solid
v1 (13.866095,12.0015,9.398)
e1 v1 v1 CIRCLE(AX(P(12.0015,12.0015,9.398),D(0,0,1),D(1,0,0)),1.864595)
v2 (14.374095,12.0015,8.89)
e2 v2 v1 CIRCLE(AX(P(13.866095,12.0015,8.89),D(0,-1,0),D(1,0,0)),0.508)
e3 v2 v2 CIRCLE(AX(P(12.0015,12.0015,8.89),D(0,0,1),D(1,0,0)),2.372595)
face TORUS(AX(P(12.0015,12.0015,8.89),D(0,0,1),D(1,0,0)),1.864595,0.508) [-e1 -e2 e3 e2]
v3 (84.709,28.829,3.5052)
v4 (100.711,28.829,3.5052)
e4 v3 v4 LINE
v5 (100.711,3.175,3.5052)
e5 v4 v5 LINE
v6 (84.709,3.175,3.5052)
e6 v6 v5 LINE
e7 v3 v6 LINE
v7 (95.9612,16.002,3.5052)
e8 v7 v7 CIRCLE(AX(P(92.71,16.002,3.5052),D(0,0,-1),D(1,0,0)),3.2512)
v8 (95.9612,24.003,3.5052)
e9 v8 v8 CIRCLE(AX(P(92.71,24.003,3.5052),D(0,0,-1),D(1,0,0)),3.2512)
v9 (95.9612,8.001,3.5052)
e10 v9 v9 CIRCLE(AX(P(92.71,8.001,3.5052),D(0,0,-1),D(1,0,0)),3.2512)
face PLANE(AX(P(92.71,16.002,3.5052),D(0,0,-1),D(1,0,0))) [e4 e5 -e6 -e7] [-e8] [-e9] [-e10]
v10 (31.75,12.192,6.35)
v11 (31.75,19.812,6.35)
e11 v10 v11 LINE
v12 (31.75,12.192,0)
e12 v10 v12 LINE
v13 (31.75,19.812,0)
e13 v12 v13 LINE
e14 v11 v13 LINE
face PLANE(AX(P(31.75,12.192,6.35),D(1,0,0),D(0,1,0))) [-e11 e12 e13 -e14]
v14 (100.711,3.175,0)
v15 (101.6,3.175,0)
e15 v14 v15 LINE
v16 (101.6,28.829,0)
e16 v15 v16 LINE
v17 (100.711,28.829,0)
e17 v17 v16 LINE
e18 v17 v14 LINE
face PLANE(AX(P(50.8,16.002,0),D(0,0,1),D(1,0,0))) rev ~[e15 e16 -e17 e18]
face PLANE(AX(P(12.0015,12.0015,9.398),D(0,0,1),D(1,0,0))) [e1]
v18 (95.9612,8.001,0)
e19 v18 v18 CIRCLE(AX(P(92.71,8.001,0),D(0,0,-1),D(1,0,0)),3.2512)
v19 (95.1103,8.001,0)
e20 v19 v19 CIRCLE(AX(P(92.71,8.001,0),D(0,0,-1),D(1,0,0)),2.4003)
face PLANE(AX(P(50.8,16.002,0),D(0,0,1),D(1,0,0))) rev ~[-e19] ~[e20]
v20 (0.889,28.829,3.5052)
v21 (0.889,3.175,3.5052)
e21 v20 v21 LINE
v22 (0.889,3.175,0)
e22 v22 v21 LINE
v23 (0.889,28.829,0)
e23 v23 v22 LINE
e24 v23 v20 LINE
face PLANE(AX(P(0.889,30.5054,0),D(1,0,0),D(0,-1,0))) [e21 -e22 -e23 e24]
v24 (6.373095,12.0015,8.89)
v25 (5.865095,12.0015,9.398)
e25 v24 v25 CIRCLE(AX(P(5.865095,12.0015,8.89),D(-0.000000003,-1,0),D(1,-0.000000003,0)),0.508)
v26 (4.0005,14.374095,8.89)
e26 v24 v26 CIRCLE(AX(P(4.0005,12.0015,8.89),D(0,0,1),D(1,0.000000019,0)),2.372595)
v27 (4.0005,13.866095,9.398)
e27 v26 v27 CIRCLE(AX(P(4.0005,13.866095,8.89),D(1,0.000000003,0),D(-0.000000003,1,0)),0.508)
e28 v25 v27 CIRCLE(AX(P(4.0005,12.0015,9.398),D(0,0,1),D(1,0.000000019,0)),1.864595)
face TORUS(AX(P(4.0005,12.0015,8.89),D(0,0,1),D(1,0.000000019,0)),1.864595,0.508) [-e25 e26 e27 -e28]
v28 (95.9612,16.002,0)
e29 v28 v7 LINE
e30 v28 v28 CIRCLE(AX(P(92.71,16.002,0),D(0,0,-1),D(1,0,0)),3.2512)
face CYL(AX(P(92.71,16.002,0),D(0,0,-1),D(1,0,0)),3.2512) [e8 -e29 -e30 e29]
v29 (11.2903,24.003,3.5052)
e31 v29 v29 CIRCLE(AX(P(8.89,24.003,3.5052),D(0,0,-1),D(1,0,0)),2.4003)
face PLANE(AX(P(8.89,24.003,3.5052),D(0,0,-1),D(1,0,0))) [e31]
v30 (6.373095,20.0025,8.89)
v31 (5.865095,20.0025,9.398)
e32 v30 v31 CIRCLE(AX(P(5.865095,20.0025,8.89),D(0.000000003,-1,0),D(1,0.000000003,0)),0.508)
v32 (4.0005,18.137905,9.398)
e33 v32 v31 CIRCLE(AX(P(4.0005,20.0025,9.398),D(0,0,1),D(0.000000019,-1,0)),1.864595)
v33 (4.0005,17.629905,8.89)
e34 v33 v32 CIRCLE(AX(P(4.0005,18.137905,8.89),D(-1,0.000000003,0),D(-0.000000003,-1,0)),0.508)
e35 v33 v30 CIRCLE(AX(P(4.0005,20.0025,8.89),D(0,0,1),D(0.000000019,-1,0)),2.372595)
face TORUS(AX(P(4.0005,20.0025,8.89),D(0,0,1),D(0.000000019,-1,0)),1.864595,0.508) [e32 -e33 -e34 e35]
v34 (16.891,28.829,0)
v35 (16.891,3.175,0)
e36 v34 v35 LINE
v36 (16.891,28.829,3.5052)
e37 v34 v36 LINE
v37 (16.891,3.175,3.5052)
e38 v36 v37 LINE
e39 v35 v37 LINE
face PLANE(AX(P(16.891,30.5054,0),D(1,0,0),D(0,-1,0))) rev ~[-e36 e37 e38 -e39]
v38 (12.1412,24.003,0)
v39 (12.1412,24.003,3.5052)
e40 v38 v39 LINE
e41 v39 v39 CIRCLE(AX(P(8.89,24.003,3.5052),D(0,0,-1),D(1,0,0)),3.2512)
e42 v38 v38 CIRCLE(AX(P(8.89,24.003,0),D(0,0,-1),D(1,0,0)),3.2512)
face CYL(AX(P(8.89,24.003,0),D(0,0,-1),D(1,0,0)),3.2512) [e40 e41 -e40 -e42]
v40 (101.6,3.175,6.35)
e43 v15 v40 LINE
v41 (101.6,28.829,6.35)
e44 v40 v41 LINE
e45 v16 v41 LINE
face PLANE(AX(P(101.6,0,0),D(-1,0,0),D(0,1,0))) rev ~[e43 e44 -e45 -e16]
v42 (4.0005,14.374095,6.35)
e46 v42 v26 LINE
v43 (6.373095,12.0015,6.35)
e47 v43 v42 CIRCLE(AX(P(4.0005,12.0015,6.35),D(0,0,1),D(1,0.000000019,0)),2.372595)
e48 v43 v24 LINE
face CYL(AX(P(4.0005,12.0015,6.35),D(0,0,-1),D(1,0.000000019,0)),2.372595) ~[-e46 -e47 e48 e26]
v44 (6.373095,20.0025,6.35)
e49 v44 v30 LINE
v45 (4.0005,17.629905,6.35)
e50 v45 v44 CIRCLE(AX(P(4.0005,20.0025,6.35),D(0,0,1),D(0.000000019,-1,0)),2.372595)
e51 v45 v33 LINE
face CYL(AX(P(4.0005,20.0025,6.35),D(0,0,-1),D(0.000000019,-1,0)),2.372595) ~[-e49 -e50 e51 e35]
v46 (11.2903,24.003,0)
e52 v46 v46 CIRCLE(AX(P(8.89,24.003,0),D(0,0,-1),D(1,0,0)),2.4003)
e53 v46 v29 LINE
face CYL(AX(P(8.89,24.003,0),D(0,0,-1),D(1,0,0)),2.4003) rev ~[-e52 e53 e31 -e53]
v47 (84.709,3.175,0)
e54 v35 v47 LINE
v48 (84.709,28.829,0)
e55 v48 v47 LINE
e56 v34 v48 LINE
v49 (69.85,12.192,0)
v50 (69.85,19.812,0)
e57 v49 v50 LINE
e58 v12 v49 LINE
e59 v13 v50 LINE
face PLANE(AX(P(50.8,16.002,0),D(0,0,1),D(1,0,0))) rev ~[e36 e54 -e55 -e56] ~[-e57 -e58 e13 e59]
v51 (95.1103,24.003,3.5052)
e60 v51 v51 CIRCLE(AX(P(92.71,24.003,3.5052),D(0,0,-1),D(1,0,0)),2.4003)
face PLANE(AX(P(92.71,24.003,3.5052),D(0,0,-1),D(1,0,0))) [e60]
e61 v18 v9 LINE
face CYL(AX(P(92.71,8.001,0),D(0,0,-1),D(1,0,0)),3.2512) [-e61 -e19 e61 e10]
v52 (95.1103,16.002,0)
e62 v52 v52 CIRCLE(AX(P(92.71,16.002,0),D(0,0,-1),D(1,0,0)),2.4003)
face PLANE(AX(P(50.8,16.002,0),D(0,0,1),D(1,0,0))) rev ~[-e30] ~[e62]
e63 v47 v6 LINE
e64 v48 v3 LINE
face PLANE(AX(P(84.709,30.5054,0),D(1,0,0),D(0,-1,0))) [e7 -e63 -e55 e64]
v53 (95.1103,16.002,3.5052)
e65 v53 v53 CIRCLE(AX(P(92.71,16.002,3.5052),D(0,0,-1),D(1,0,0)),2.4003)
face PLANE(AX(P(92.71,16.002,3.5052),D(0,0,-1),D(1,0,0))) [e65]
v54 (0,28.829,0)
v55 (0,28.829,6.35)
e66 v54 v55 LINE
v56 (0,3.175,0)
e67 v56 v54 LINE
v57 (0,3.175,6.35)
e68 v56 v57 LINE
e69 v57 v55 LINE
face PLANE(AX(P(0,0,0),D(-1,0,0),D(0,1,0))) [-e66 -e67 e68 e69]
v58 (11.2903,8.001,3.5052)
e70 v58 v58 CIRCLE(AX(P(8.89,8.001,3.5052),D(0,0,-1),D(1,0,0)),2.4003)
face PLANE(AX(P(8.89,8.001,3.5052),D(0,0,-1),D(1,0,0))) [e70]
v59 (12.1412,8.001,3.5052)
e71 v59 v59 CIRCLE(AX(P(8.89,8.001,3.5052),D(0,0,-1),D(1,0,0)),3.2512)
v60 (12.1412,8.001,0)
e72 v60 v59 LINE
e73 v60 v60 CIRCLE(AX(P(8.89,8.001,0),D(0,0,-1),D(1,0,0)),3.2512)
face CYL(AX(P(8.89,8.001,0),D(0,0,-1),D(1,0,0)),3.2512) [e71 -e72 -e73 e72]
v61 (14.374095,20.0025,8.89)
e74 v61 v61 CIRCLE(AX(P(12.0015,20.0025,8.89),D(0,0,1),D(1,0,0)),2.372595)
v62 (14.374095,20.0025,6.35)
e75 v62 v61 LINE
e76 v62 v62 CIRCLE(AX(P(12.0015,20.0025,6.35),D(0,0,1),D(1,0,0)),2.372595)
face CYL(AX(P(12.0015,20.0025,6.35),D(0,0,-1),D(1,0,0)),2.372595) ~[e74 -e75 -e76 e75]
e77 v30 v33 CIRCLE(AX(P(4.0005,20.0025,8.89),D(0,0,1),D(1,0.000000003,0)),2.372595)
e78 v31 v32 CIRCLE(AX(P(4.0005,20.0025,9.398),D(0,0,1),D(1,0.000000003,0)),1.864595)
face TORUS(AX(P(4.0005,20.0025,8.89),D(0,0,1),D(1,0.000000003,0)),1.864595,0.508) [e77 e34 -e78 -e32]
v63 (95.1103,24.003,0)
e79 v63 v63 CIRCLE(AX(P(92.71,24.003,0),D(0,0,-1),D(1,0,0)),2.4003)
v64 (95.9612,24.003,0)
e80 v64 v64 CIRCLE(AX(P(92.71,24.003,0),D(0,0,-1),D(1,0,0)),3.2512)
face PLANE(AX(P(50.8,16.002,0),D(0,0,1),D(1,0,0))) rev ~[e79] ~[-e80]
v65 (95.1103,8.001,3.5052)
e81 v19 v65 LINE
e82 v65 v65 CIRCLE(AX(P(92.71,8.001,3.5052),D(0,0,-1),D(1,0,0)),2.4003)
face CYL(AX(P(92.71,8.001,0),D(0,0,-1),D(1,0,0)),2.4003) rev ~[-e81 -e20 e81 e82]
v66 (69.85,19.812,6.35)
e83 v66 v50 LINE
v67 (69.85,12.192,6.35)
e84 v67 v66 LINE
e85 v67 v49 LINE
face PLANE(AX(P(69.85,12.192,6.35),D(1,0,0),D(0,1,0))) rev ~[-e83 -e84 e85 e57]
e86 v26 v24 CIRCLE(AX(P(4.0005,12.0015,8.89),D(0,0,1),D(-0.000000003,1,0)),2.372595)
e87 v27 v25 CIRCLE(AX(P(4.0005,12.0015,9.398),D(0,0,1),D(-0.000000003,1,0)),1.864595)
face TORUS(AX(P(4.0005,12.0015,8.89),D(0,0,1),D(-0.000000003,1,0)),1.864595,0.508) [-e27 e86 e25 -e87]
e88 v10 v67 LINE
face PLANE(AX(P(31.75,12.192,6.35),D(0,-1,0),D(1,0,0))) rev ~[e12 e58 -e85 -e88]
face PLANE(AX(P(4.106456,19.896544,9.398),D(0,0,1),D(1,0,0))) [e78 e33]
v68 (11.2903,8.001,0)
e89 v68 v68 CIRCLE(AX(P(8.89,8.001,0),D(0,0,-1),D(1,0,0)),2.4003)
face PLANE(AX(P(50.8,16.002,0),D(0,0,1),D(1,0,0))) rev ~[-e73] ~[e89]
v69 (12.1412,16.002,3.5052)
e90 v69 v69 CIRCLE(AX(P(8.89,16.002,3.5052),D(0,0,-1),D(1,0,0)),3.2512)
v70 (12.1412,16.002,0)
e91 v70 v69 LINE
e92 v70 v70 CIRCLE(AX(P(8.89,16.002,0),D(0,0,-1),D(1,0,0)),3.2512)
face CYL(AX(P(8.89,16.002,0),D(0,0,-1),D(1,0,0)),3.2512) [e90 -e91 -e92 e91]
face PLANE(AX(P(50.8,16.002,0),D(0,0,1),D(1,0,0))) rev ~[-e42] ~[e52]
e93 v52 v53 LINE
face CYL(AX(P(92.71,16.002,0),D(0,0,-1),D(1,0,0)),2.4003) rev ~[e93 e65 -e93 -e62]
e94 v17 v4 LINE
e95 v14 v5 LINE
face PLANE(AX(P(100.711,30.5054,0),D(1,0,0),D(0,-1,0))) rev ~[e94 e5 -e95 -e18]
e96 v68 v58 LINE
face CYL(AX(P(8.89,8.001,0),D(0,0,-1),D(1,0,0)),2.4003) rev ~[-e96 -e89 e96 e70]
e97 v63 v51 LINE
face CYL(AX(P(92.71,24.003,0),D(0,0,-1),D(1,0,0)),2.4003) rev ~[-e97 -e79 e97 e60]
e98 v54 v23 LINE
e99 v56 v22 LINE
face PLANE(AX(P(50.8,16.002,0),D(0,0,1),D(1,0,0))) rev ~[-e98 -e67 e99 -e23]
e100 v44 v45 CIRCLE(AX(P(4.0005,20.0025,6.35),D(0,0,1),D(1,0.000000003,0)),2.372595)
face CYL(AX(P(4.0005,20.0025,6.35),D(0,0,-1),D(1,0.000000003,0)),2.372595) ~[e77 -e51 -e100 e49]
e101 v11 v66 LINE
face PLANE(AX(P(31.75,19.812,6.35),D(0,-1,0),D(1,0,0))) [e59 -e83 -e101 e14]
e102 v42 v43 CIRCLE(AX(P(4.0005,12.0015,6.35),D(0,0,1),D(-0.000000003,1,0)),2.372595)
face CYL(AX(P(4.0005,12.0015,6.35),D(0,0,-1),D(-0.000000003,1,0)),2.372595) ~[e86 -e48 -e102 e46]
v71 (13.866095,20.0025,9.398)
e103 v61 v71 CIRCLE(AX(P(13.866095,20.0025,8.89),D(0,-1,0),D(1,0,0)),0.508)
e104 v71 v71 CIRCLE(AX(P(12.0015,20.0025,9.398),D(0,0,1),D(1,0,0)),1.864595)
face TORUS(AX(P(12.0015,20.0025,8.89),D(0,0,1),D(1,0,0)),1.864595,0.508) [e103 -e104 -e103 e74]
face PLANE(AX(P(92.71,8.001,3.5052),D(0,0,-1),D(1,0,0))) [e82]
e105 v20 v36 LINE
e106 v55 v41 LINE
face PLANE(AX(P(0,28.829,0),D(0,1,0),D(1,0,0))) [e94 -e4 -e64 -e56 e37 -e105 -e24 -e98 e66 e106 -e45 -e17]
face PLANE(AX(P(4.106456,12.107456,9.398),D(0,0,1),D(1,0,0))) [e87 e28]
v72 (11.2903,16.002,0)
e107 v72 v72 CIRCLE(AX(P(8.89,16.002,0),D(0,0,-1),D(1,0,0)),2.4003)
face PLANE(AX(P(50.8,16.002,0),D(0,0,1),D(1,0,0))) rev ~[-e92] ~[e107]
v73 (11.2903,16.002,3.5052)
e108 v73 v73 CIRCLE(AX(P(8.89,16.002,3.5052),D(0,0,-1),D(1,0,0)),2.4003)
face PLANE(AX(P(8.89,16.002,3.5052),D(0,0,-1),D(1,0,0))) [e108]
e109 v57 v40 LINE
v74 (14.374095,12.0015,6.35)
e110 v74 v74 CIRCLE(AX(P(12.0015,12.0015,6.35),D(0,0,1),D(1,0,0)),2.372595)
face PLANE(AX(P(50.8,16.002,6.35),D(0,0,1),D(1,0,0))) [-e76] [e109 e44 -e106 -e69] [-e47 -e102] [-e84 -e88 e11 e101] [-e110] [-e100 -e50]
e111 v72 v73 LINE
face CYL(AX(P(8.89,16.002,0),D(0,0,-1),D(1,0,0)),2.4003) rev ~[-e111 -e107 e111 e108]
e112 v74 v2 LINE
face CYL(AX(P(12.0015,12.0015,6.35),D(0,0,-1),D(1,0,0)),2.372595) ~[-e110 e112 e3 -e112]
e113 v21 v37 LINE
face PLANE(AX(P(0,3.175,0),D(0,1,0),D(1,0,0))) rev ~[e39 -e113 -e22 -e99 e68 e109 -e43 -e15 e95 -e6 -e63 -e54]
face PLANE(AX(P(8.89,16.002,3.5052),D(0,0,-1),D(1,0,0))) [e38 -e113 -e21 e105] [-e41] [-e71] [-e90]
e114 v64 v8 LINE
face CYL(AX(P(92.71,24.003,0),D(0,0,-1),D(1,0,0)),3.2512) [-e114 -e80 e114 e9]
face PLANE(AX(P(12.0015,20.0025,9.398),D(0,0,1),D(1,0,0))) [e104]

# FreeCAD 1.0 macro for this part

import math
import FreeCAD as App
import Part
import Sketcher
Q = App.Units.Quantity


def edges_at(feature, points):
    """Names of the edges that pass closest to the given points."""
    edges = feature.Shape.Edges
    near = lambda p: min(range(len(edges)), key=lambda i: edges[i].distToShape(Part.Vertex(*p))[0])
    return sorted({f"Edge{near(p) + 1}" for p in points})


def add_polygon(sketch, points):
    """Adds a closed chain of lines whose ends are joined by coincident constraints."""
    first, n = sketch.GeometryCount, len(points)
    for a, b in zip(points, points[1:] + points[:1]):
        sketch.addGeometry(Part.LineSegment(App.Vector(*a, 0), App.Vector(*b, 0)), False)
    for i in range(n):
        sketch.addConstraint(Sketcher.Constraint("Coincident", first + i, 2, first + (i + 1) % n, 1))

doc = App.newDocument("Part")
body = doc.addObject("PartDesign::Body", "Body")

sketch1 = body.newObject("Sketcher::SketchObject", "Sketch")
sketch1.AttachmentSupport = (doc.getObject("XY_Plane"), [""])
sketch1.MapMode = "FlatFace"
add_polygon(sketch1, [(0, 32), (0, 0), (102, 0), (102, 32)])
sketch1.addConstraint([
    Sketcher.Constraint("Vertical", 0),
    Sketcher.Constraint("Horizontal", 1),
    Sketcher.Constraint("Vertical", 2),
    Sketcher.Constraint("Horizontal", 3),
    Sketcher.Constraint("Coincident", 0, 2, -1, 1),
    Sketcher.Constraint("DistanceX", 1, 1, 1, 2, Q("4 in")),
    Sketcher.Constraint("DistanceY", 0, 2, 0, 1, Q("1.26 in")),
])
pad1 = body.newObject("PartDesign::Pad", "Pad")
pad1.Profile = sketch1
pad1.Length = Q("0.25 in")

sketch2 = body.newObject("Sketcher::SketchObject", "Sketch001")
sketch2.AttachmentSupport = (doc.getObject("XY_Plane"), [""])
sketch2.MapMode = "FlatFace"
sketch2.AttachmentOffset = App.Placement(App.Vector(0, 0, 0.25 * 25.4), App.Rotation())
sketch2.addGeometry([
    Part.Circle(App.Vector(12, 20, 0), App.Vector(0, 0, 1), 2.4),
    Part.Circle(App.Vector(12, 12, 0), App.Vector(0, 0, 1), 2.4),
    Part.ArcOfCircle(Part.Circle(App.Vector(4, 12, 0), App.Vector(0, 0, 1), 2.4), math.radians(0), math.radians(90)),
    Part.ArcOfCircle(Part.Circle(App.Vector(4, 12, 0), App.Vector(0, 0, 1), 2.4), math.radians(90), math.radians(360)),
    Part.ArcOfCircle(Part.Circle(App.Vector(4, 20, 0), App.Vector(0, 0, 1), 2.4), math.radians(-90), math.radians(0)),
    Part.ArcOfCircle(Part.Circle(App.Vector(4, 20, 0), App.Vector(0, 0, 1), 2.4), math.radians(0), math.radians(270)),
], False)
sketch2.addConstraint([
    Sketcher.Constraint("Tangent", 2, 1, 3, 2),
    Sketcher.Constraint("Coincident", 3, 1, 2, 2),
    Sketcher.Constraint("Tangent", 4, 1, 5, 2),
    Sketcher.Constraint("Coincident", 5, 1, 4, 2),
    Sketcher.Constraint("Equal", 0, 1),
    Sketcher.Constraint("Equal", 1, 2),
    Sketcher.Constraint("Equal", 3, 4),
    Sketcher.Constraint("Horizontal", 1, 3, 2, 3),
    Sketcher.Constraint("Horizontal", 0, 3, 4, 3),
    Sketcher.Constraint("Horizontal", 3, 3, 2, 1),
    Sketcher.Constraint("Horizontal", 4, 3, 5, 1),
    Sketcher.Constraint("Vertical", 0, 3, 1, 3),
    Sketcher.Constraint("Vertical", 3, 3, 4, 3),
    Sketcher.Constraint("Vertical", 5, 3, 3, 1),
    Sketcher.Constraint("Vertical", 3, 1, 4, 1),
    Sketcher.Constraint("Diameter", 0, Q("4.74519 mm")),
    Sketcher.Constraint("DistanceY", 1, 3, 0, 3, Q("0.315 in")),
    Sketcher.Constraint("DistanceX", 2, 3, 1, 3, Q("0.315 in")),
    Sketcher.Constraint("DistanceX", -1, 1, 0, 3, Q("0.4725 in")),
    Sketcher.Constraint("DistanceY", -1, 1, 0, 3, Q("0.7875 in")),
])
pad2 = body.newObject("PartDesign::Pad", "Pad001")
pad2.Profile = sketch2
pad2.Length = Q("0.12 in")
doc.recompute()

fillet = body.newObject("PartDesign::Fillet", "Fillet")
fillet.Base = (pad2, edges_at(pad2, [
    (9.629, 20.003, 9.398),
    (2.323, 21.68, 9.398),
    (2.323, 10.324, 9.398),
    (9.629, 12.002, 9.398),
]))
fillet.Radius = Q("0.02 in")

sketch3 = body.newObject("Sketcher::SketchObject", "Sketch002")
sketch3.AttachmentSupport = (doc.getObject("XY_Plane"), [""])
sketch3.MapMode = "FlatFace"
add_polygon(sketch3, [(0.9, 1.5), (0.9, 30.5), (16.9, 30.5), (16.9, 1.5)])
sketch3.addGeometry(Part.Circle(App.Vector(8.9, 24, 0), App.Vector(0, 0, 1), 3.3), False)
sketch3.addGeometry(Part.Circle(App.Vector(8.9, 16, 0), App.Vector(0, 0, 1), 3.3), False)
sketch3.addGeometry(Part.Circle(App.Vector(8.9, 8, 0), App.Vector(0, 0, 1), 3.3), False)
add_polygon(sketch3, [(84.7, 1.5), (84.7, 30.5), (100.7, 30.5), (100.7, 1.5)])
sketch3.addGeometry(Part.Circle(App.Vector(92.7, 24, 0), App.Vector(0, 0, 1), 3.3), False)
sketch3.addGeometry(Part.Circle(App.Vector(92.7, 16, 0), App.Vector(0, 0, 1), 3.3), False)
sketch3.addGeometry(Part.Circle(App.Vector(92.7, 8, 0), App.Vector(0, 0, 1), 3.3), False)
sketch3.addGeometry(Part.Circle(App.Vector(8.9, 8, 0), App.Vector(0, 0, 1), 2.4), False)
sketch3.addGeometry(Part.Circle(App.Vector(8.9, 16, 0), App.Vector(0, 0, 1), 2.4), False)
sketch3.addGeometry(Part.Circle(App.Vector(8.9, 24, 0), App.Vector(0, 0, 1), 2.4), False)
sketch3.addGeometry(Part.Circle(App.Vector(92.7, 8, 0), App.Vector(0, 0, 1), 2.4), False)
sketch3.addGeometry(Part.Circle(App.Vector(92.7, 16, 0), App.Vector(0, 0, 1), 2.4), False)
sketch3.addGeometry(Part.Circle(App.Vector(92.7, 24, 0), App.Vector(0, 0, 1), 2.4), False)
sketch3.addConstraint([
    Sketcher.Constraint("Vertical", 0),
    Sketcher.Constraint("Horizontal", 1),
    Sketcher.Constraint("Vertical", 2),
    Sketcher.Constraint("Horizontal", 3),
    Sketcher.Constraint("Vertical", 7),
    Sketcher.Constraint("Horizontal", 8),
    Sketcher.Constraint("Vertical", 9),
    Sketcher.Constraint("Horizontal", 10),
    Sketcher.Constraint("Coincident", 14, 3, 6, 3),
    Sketcher.Constraint("Coincident", 15, 3, 5, 3),
    Sketcher.Constraint("Coincident", 16, 3, 4, 3),
    Sketcher.Constraint("Coincident", 17, 3, 13, 3),
    Sketcher.Constraint("Coincident", 18, 3, 12, 3),
    Sketcher.Constraint("Coincident", 19, 3, 11, 3),
    Sketcher.Constraint("Equal", 4, 5),
    Sketcher.Constraint("Equal", 5, 6),
    Sketcher.Constraint("Equal", 6, 11),
    Sketcher.Constraint("Equal", 11, 12),
    Sketcher.Constraint("Equal", 12, 13),
    Sketcher.Constraint("Equal", 14, 15),
    Sketcher.Constraint("Equal", 15, 16),
    Sketcher.Constraint("Equal", 16, 17),
    Sketcher.Constraint("Equal", 17, 18),
    Sketcher.Constraint("Equal", 18, 19),
    Sketcher.Constraint("Horizontal", 4, 3, 11, 3),
    Sketcher.Constraint("Horizontal", 5, 3, 12, 3),
    Sketcher.Constraint("Horizontal", 6, 3, 13, 3),
    Sketcher.Constraint("Horizontal", 1, 2, 7, 2),
    Sketcher.Constraint("Horizontal", 3, 2, 9, 2),
    Sketcher.Constraint("Vertical", 4, 3, 5, 3),
    Sketcher.Constraint("Vertical", 5, 3, 6, 3),
    Sketcher.Constraint("Vertical", 11, 3, 12, 3),
    Sketcher.Constraint("Vertical", 12, 3, 13, 3),
    Sketcher.Constraint("Equal", 3, 8),
    Sketcher.Constraint("Diameter", 4, Q("0.256 in")),
    Sketcher.Constraint("Diameter", 14, Q("0.189 in")),
    Sketcher.Constraint("DistanceX", 1, 1, 1, 2, Q("0.63 in")),
    Sketcher.Constraint("DistanceX", 4, 3, 11, 3, Q("3.3 in")),
    Sketcher.Constraint("DistanceY", 0, 1, 0, 2, Q("1.142 in")),
    Sketcher.Constraint("DistanceX", -1, 1, 4, 3, Q("0.35 in")),
    Sketcher.Constraint("DistanceY", -1, 1, 5, 3, Q("0.63 in")),
    Sketcher.Constraint("DistanceY", 6, 3, 4, 3, Q("0.63 in")),
    Sketcher.Constraint("DistanceY", -1, 1, 4, 3, Q("0.945 in")),
    Sketcher.Constraint("DistanceX", -1, 1, 0, 2, Q("0.035 in")),
    Sketcher.Constraint("DistanceY", -1, 1, 0, 2, Q("1.201 in")),
    Sketcher.Constraint("DistanceX", -1, 1, 7, 2, Q("3.335 in")),
])
pocket1 = body.newObject("PartDesign::Pocket", "Pocket")
pocket1.Profile = sketch3
pocket1.Length = Q("0.138 in")
pocket1.Reversed = True

sketch4 = body.newObject("Sketcher::SketchObject", "Sketch003")
sketch4.AttachmentSupport = (doc.getObject("XY_Plane"), [""])
sketch4.MapMode = "FlatFace"
add_polygon(sketch4, [(0, 28.8), (0, 32), (101.6, 32), (101.6, 28.8)])
add_polygon(sketch4, [(0, 0), (0, 3.2), (101.6, 3.2), (101.6, 0)])
sketch4.addConstraint([
    Sketcher.Constraint("Vertical", 0),
    Sketcher.Constraint("Horizontal", 1),
    Sketcher.Constraint("Vertical", 2),
    Sketcher.Constraint("Horizontal", 3),
    Sketcher.Constraint("Vertical", 4),
    Sketcher.Constraint("Horizontal", 5),
    Sketcher.Constraint("Vertical", 6),
    Sketcher.Constraint("Horizontal", 7),
    Sketcher.Constraint("Coincident", 7, 2, -1, 1),
    Sketcher.Constraint("PointOnObject", 0, 2, -2),
    Sketcher.Constraint("Vertical", 2, 2, 5, 2),
    Sketcher.Constraint("Equal", 2, 4),
    Sketcher.Constraint("DistanceX", 1, 1, 1, 2, Q("4 in")),
    Sketcher.Constraint("DistanceY", 0, 1, 0, 2, Q("0.125 in")),
    Sketcher.Constraint("DistanceY", -1, 1, 0, 2, Q("1.26 in")),
])
pocket2 = body.newObject("PartDesign::Pocket", "Pocket001")
pocket2.Profile = sketch4
pocket2.Type = "ThroughAll"
pocket2.Reversed = True

sketch5 = body.newObject("Sketcher::SketchObject", "Sketch004")
sketch5.AttachmentSupport = (doc.getObject("XY_Plane"), [""])
sketch5.MapMode = "FlatFace"
sketch5.AttachmentOffset = App.Placement(App.Vector(0, 0, 0.25 * 25.4), App.Rotation())
add_polygon(sketch5, [(32, 20), (32, 12), (70, 12), (70, 20)])
sketch5.addConstraint([
    Sketcher.Constraint("Vertical", 0),
    Sketcher.Constraint("Horizontal", 1),
    Sketcher.Constraint("Vertical", 2),
    Sketcher.Constraint("Horizontal", 3),
    Sketcher.Constraint("DistanceX", 1, 1, 1, 2, Q("1.5 in")),
    Sketcher.Constraint("DistanceY", 0, 2, 0, 1, Q("0.3 in")),
    Sketcher.Constraint("DistanceX", -1, 1, 0, 2, Q("1.25 in")),
    Sketcher.Constraint("DistanceY", -1, 1, 0, 2, Q("0.48 in")),
])
pocket3 = body.newObject("PartDesign::Pocket", "Pocket002")
pocket3.Profile = sketch5
pocket3.Type = "ThroughAll"

doc.recompute()
